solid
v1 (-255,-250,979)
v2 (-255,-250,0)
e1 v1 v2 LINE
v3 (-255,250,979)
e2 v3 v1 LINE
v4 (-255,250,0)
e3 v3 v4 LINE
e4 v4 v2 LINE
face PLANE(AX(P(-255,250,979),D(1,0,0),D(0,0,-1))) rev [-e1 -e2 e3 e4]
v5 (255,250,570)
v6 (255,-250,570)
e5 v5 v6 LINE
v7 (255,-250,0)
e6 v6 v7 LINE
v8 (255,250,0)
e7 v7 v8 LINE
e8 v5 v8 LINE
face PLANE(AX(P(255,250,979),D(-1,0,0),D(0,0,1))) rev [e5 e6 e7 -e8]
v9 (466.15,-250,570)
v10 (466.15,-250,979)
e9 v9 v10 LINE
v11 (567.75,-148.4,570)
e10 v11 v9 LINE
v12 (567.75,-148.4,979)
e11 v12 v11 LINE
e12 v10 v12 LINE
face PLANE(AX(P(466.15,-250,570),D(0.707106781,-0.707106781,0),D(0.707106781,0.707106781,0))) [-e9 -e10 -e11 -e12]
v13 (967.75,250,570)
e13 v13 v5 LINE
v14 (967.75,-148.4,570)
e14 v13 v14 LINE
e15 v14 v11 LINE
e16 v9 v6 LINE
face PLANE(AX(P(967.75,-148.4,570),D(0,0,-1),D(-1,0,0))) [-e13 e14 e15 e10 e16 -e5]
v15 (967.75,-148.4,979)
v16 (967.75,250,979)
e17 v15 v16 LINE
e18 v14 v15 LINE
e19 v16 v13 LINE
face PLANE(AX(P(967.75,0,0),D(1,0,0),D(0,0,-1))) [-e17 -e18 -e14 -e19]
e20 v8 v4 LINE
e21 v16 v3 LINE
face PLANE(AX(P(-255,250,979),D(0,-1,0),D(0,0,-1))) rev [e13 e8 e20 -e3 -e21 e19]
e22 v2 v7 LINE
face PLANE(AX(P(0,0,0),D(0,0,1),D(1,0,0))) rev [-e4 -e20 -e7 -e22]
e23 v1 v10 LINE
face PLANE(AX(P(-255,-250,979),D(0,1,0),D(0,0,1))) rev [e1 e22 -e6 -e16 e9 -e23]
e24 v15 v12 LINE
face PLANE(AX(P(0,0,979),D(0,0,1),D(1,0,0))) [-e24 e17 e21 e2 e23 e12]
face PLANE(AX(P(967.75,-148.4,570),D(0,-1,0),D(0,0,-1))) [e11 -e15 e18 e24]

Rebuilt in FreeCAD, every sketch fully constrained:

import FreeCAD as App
import Part
import Sketcher

V = App.Vector


def faces_at(feature, points):
    """Names of the faces that lie closest to the given points."""
    faces = feature.Shape.Faces
    near = lambda p: min(range(len(faces)), key=lambda i: faces[i].distToShape(Part.Vertex(*p))[0])
    return sorted({f"Face{near(p) + 1}" for p in points})


def add_polygon(sketch, points):
    """Adds a closed chain of lines whose ends are joined by coincident constraints."""
    first, n = sketch.GeometryCount, len(points)
    for a, b in zip(points, points[1:] + points[:1]):
        sketch.addGeometry(Part.LineSegment(App.Vector(*a, 0), App.Vector(*b, 0)), False)
    for i in range(n):
        sketch.addConstraint(Sketcher.Constraint("Coincident", first + i, 2, first + (i + 1) % n, 1))

doc = App.newDocument("Part")
body = doc.addObject("PartDesign::Body", "Body")

# Sketch on XY plane
sketch1 = body.newObject("Sketcher::SketchObject", "Sketch")
sketch1.AttachmentSupport = (doc.getObject("XY_Plane"), [""])
sketch1.MapMode = "FlatFace"
add_polygon(sketch1, [(-255, 250), (-255, -250), (255, -250), (255, 250)])  # lines 0-3
sketch1.addConstraint(Sketcher.Constraint("Vertical", 0))
sketch1.addConstraint(Sketcher.Constraint("Horizontal", 1))
sketch1.addConstraint(Sketcher.Constraint("Vertical", 2))
sketch1.addConstraint(Sketcher.Constraint("Horizontal", 3))
sketch1.addConstraint(Sketcher.Constraint("Symmetric", 0, 2, 2, 2, -1, 1))
sketch1.addConstraint(Sketcher.Constraint("DistanceX", 1, 1, 1, 2, 510.0))
sketch1.addConstraint(Sketcher.Constraint("DistanceY", 0, 2, 0, 1, 500.0))
pad1 = body.newObject("PartDesign::Pad", "Pad")
pad1.Profile = sketch1
pad1.Length = 979

# Sketch on YZ plane
sketch2 = body.newObject("Sketcher::SketchObject", "Sketch001")
sketch2.AttachmentSupport = (doc.getObject("YZ_Plane"), [""])
sketch2.MapMode = "FlatFace"
sketch2.AttachmentOffset = App.Placement(V(0, 0, -255), App.Rotation())
add_polygon(sketch2, [(250, 570), (-148, 570), (-148, 979), (250, 979)])  # lines 0-3
sketch2.addConstraint(Sketcher.Constraint("Horizontal", 0))
sketch2.addConstraint(Sketcher.Constraint("Vertical", 1))
sketch2.addConstraint(Sketcher.Constraint("Horizontal", 2))
sketch2.addConstraint(Sketcher.Constraint("Vertical", 3))
sketch2.addConstraint(Sketcher.Constraint("DistanceY", 1, 1, 1, 2, 409.0))
sketch2.addConstraint(Sketcher.Constraint("DistanceX", 0, 2, 0, 1, 398.4))
sketch2.addConstraint(Sketcher.Constraint("DistanceY", -1, 1, 0, 2, 570.0))
sketch2.addConstraint(Sketcher.Constraint("DistanceX", -1, 1, 2, 2, 250.0))
pad2 = body.newObject("PartDesign::Pad", "Pad001")
pad2.Profile = sketch2
pad2.Length = 1222.75

# Sketch on YZ plane
sketch3 = body.newObject("Sketcher::SketchObject", "Sketch002")
sketch3.AttachmentSupport = (doc.getObject("YZ_Plane"), [""])
sketch3.MapMode = "FlatFace"
sketch3.AttachmentOffset = App.Placement(V(0, 0, -255), App.Rotation())
add_polygon(sketch3, [(250, 570), (-250, 570), (-250, 979), (250, 979)])  # lines 0-3
sketch3.addConstraint(Sketcher.Constraint("Horizontal", 0))
sketch3.addConstraint(Sketcher.Constraint("Vertical", 1))
sketch3.addConstraint(Sketcher.Constraint("Horizontal", 2))
sketch3.addConstraint(Sketcher.Constraint("Vertical", 3))
sketch3.addConstraint(Sketcher.Constraint("DistanceX", 0, 2, 0, 1, 500.0))
sketch3.addConstraint(Sketcher.Constraint("DistanceY", 1, 1, 1, 2, 409.0))
sketch3.addConstraint(Sketcher.Constraint("DistanceX", 0, 2, -1, 1, 250.0))
sketch3.addConstraint(Sketcher.Constraint("DistanceY", -1, 1, 0, 2, 570.0))
pad3 = body.newObject("PartDesign::Pad", "Pad002")
pad3.Profile = sketch3
pad3.Length = 721.15
doc.recompute()

datumplane = body.newObject("PartDesign::Plane", "DatumPlane")
datumplane.AttachmentSupport = (doc.getObject("XZ_Plane"), [""])
datumplane.MapMode = "FlatFace"
datumplane.AttachmentOffset = App.Placement(V(0, 0, 250), App.Rotation())
draft = body.newObject("PartDesign::Draft", "Draft")
draft.Base = (pad3, faces_at(pad3, [(466.15, -199.2, 774.5)]))
draft.NeutralPlane = (datumplane, [""])
draft.Angle = 45
draft.Reversed = False

doc.recompute()
